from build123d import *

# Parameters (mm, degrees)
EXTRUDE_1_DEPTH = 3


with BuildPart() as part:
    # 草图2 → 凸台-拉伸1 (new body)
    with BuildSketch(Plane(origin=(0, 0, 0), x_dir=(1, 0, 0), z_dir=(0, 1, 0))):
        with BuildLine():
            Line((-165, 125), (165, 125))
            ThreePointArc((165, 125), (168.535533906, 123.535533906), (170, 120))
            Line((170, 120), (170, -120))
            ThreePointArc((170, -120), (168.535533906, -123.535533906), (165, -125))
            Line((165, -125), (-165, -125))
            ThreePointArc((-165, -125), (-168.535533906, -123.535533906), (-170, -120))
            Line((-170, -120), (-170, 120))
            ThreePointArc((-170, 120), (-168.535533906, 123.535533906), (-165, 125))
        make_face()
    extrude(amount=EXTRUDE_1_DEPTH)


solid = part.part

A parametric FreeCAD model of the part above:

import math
import FreeCAD as App
import Part
import Sketcher

V = App.Vector

doc = App.newDocument("Part")
body = doc.addObject("PartDesign::Body", "Body")

sketch1 = body.newObject("Sketcher::SketchObject", "Sketch")
sketch1.AttachmentSupport = (doc.getObject("XZ_Plane"), [""])
sketch1.MapMode = "FlatFace"
sketch1.addGeometry(Part.LineSegment(V(165, -125, 0), V(-165, -125, 0)), False)
sketch1.addGeometry(Part.ArcOfCircle(Part.Circle(V(-165, -120, 0), V(0, 0, 1), 5), math.radians(180), math.radians(270)), False)
sketch1.addGeometry(Part.LineSegment(V(-170, -120, 0), V(-170, 120, 0)), False)
sketch1.addGeometry(Part.ArcOfCircle(Part.Circle(V(-165, 120, 0), V(0, 0, 1), 5), math.radians(90), math.radians(180)), False)
sketch1.addGeometry(Part.LineSegment(V(-165, 125, 0), V(165, 125, 0)), False)
sketch1.addGeometry(Part.ArcOfCircle(Part.Circle(V(165, 120, 0), V(0, 0, 1), 5), math.radians(0), math.radians(90)), False)
sketch1.addGeometry(Part.LineSegment(V(170, 120, 0), V(170, -120, 0)), False)
sketch1.addGeometry(Part.ArcOfCircle(Part.Circle(V(165, -120, 0), V(0, 0, 1), 5), math.radians(-90), math.radians(0)), False)
sketch1.addConstraint(Sketcher.Constraint("Tangent", 0, 2, 1, 2))
sketch1.addConstraint(Sketcher.Constraint("Tangent", 1, 1, 2, 1))
sketch1.addConstraint(Sketcher.Constraint("Tangent", 2, 2, 3, 2))
sketch1.addConstraint(Sketcher.Constraint("Tangent", 3, 1, 4, 1))
sketch1.addConstraint(Sketcher.Constraint("Tangent", 4, 2, 5, 2))
sketch1.addConstraint(Sketcher.Constraint("Tangent", 5, 1, 6, 1))
sketch1.addConstraint(Sketcher.Constraint("Tangent", 6, 2, 7, 2))
sketch1.addConstraint(Sketcher.Constraint("Tangent", 7, 1, 0, 1))
sketch1.addConstraint(Sketcher.Constraint("Horizontal", 0))
sketch1.addConstraint(Sketcher.Constraint("Vertical", 2))
sketch1.addConstraint(Sketcher.Constraint("Horizontal", 4))
sketch1.addConstraint(Sketcher.Constraint("Vertical", 6))
sketch1.addConstraint(Sketcher.Constraint("Equal", 1, 3))
sketch1.addConstraint(Sketcher.Constraint("Equal", 3, 5))
sketch1.addConstraint(Sketcher.Constraint("Equal", 5, 7))
sketch1.addConstraint(Sketcher.Constraint("Symmetric", 1, 3, 5, 3, -1, 1))
sketch1.addConstraint(Sketcher.Constraint("Radius", 1, 5.0))
sketch1.addConstraint(Sketcher.Constraint("DistanceX", 0, 2, 0, 1, 330.0))
sketch1.addConstraint(Sketcher.Constraint("DistanceY", 2, 1, 2, 2, 240.0))
pad1 = body.newObject("PartDesign::Pad", "Pad")
pad1.Profile = sketch1
pad1.Length = 3
pad1.Reversed = True

doc.recompute()
